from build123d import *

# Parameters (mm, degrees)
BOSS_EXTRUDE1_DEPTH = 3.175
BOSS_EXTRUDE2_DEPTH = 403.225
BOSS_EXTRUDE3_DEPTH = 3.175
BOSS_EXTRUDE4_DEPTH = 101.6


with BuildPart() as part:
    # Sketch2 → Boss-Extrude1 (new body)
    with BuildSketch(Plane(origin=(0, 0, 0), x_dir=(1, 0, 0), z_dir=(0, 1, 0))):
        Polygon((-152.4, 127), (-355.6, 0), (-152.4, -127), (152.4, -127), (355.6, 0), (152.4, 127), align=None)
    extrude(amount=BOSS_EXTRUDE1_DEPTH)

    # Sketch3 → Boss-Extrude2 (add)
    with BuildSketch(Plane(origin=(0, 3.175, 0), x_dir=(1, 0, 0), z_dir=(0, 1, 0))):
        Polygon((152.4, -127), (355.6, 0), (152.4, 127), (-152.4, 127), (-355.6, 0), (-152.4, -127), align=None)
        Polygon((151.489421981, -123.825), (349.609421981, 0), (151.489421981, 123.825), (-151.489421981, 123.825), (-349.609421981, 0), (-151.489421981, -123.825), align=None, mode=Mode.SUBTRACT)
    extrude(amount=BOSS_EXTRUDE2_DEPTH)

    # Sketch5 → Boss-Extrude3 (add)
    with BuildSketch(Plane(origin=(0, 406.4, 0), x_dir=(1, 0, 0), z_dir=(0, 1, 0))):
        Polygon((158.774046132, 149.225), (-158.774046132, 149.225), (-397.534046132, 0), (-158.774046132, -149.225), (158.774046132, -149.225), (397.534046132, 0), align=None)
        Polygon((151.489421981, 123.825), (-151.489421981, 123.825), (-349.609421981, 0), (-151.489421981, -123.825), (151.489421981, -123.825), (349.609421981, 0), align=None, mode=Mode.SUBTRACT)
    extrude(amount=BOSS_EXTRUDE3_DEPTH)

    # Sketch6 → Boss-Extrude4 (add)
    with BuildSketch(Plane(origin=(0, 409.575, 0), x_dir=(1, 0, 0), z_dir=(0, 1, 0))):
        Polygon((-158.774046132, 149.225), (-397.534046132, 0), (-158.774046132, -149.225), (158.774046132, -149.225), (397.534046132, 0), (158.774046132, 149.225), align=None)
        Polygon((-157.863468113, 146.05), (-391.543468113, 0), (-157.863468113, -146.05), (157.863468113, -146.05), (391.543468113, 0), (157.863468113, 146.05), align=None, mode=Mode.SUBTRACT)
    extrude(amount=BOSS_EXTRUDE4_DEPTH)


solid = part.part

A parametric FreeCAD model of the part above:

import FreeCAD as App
import Part
import Sketcher
Q = App.Units.Quantity


def add_polygon(sketch, points):
    """Adds a closed chain of lines whose ends are joined by coincident constraints."""
    first, n = sketch.GeometryCount, len(points)
    for a, b in zip(points, points[1:] + points[:1]):
        sketch.addGeometry(Part.LineSegment(App.Vector(*a, 0), App.Vector(*b, 0)), False)
    for i in range(n):
        sketch.addConstraint(Sketcher.Constraint("Coincident", first + i, 2, first + (i + 1) % n, 1))

doc = App.newDocument("Part")
body = doc.addObject("PartDesign::Body", "Body")

# Sketch on XZ plane
sketch1 = body.newObject("Sketcher::SketchObject", "Sketch")
sketch1.AttachmentSupport = (doc.getObject("XZ_Plane"), [""])
sketch1.MapMode = "FlatFace"
add_polygon(sketch1, [(-152, -127), (-356, 0), (-152, 127), (152, 127), (356, 0), (152, -127)])  # lines 0-5
sketch1.addConstraint([
    Sketcher.Constraint("Horizontal", 2),
    Sketcher.Constraint("Horizontal", 5),
    Sketcher.Constraint("Symmetric", 0, 2, 3, 2, -1, 1),
    Sketcher.Constraint("Symmetric", 1, 2, 4, 2, -1, 1),
    Sketcher.Constraint("PointOnObject", 0, 2, -1),
    Sketcher.Constraint("Parallel", 0, 3),
    Sketcher.Constraint("Vertical", 2, 2, 4, 2),
    Sketcher.Constraint("DistanceX", 2, 1, 2, 2, Q("12 in")),
    Sketcher.Constraint("DistanceX", 0, 2, -1, 1, Q("14 in")),
    Sketcher.Constraint("DistanceY", -1, 1, 1, 2, Q("5 in")),
])
pad1 = body.newObject("PartDesign::Pad", "Pad")
pad1.Profile = sketch1
pad1.Length = Q("0.125 in")
pad1.Reversed = True

# Sketch on XZ plane
sketch2 = body.newObject("Sketcher::SketchObject", "Sketch001")
sketch2.AttachmentSupport = (doc.getObject("XZ_Plane"), [""])
sketch2.MapMode = "FlatFace"
sketch2.AttachmentOffset = App.Placement(App.Vector(0, 0, -0.125 * 25.4), App.Rotation())
add_polygon(sketch2, [(152, 127), (356, 0), (152, -127), (-152, -127), (-356, 0), (-152, 127)])  # lines 0-5
add_polygon(sketch2, [(350, 0), (151, 124), (-151, 124), (-350, 0), (-151, -124), (151, -124)])  # lines 6-11
sketch2.addConstraint([
    Sketcher.Constraint("Horizontal", 2),
    Sketcher.Constraint("Horizontal", 5),
    Sketcher.Constraint("Horizontal", 7),
    Sketcher.Constraint("Horizontal", 10),
    Sketcher.Constraint("Symmetric", 0, 2, 3, 2, -1, 1),
    Sketcher.Constraint("Symmetric", 1, 2, 4, 2, -1, 1),
    Sketcher.Constraint("Symmetric", 6, 2, 9, 2, -1, 1),
    Sketcher.Constraint("Symmetric", 8, 2, 11, 2, -1, 1),
    Sketcher.Constraint("PointOnObject", 0, 2, -1),
    Sketcher.Constraint("PointOnObject", 8, 2, -1),
    Sketcher.Constraint("Parallel", 0, 3),
    Sketcher.Constraint("Parallel", 3, 6),
    Sketcher.Constraint("Parallel", 4, 8),
    Sketcher.Constraint("Parallel", 8, 11),
    Sketcher.Constraint("Vertical", 2, 2, 4, 2),
    Sketcher.Constraint("DistanceX", 2, 2, 2, 1, Q("12 in")),
    Sketcher.Constraint("DistanceX", -1, 1, 0, 2, Q("14 in")),
    Sketcher.Constraint("DistanceY", 1, 2, -1, 1, Q("5 in")),
    Sketcher.Constraint("DistanceX", 8, 2, 7, 2, Q("7.8 in")),
    Sketcher.Constraint("DistanceX", 7, 2, 7, 1, Q("302.978844 mm")),
])
pad2 = body.newObject("PartDesign::Pad", "Pad001")
pad2.Profile = sketch2
pad2.Length = Q("15.875 in")
pad2.Reversed = True

# Sketch on XZ plane
sketch3 = body.newObject("Sketcher::SketchObject", "Sketch002")
sketch3.AttachmentSupport = (doc.getObject("XZ_Plane"), [""])
sketch3.MapMode = "FlatFace"
sketch3.AttachmentOffset = App.Placement(App.Vector(0, 0, -16 * 25.4), App.Rotation())
add_polygon(sketch3, [(159, -149), (-159, -149), (-398, 0), (-159, 149), (159, 149), (398, 0)])  # lines 0-5
add_polygon(sketch3, [(-151, -124), (151, -124), (350, 0), (151, 124), (-151, 124), (-350, 0)])  # lines 6-11
sketch3.addConstraint([
    Sketcher.Constraint("Horizontal", 0),
    Sketcher.Constraint("Horizontal", 3),
    Sketcher.Constraint("Horizontal", 6),
    Sketcher.Constraint("Horizontal", 9),
    Sketcher.Constraint("Symmetric", 0, 2, 3, 2, -1, 1),
    Sketcher.Constraint("Symmetric", 1, 2, 4, 2, -1, 1),
    Sketcher.Constraint("Symmetric", 6, 2, 9, 2, -1, 1),
    Sketcher.Constraint("Symmetric", 7, 2, 10, 2, -1, 1),
    Sketcher.Constraint("PointOnObject", 1, 2, -1),
    Sketcher.Constraint("PointOnObject", 7, 2, -1),
    Sketcher.Constraint("Parallel", 2, 5),
    Sketcher.Constraint("Parallel", 5, 7),
    Sketcher.Constraint("Parallel", 4, 8),
    Sketcher.Constraint("Parallel", 8, 11),
    Sketcher.Constraint("Vertical", 0, 2, 2, 2),
    Sketcher.Constraint("DistanceY", 5, 2, 6, 2, Q("1 in")),
    Sketcher.Constraint("DistanceX", 1, 2, 0, 2, Q("9.4 in")),
    Sketcher.Constraint("DistanceX", 6, 2, 7, 2, Q("7.8 in")),
    Sketcher.Constraint("DistanceX", 0, 2, 0, 1, Q("317.548092 mm")),
    Sketcher.Constraint("DistanceX", 6, 1, 6, 2, Q("302.978844 mm")),
])
pad3 = body.newObject("PartDesign::Pad", "Pad002")
pad3.Profile = sketch3
pad3.Length = Q("0.125 in")
pad3.Reversed = True

# Sketch on XZ plane
sketch4 = body.newObject("Sketcher::SketchObject", "Sketch003")
sketch4.AttachmentSupport = (doc.getObject("XZ_Plane"), [""])
sketch4.MapMode = "FlatFace"
sketch4.AttachmentOffset = App.Placement(App.Vector(0, 0, -16.125 * 25.4), App.Rotation())
add_polygon(sketch4, [(-159, -149), (-398, 0), (-159, 149), (159, 149), (398, 0), (159, -149)])  # lines 0-5
add_polygon(sketch4, [(-392, 0), (-158, -146), (158, -146), (392, 0), (158, 146), (-158, 146)])  # lines 6-11
sketch4.addConstraint([
    Sketcher.Constraint("Horizontal", 2),
    Sketcher.Constraint("Horizontal", 5),
    Sketcher.Constraint("Horizontal", 7),
    Sketcher.Constraint("Horizontal", 10),
    Sketcher.Constraint("Symmetric", 0, 2, 3, 2, -1, 1),
    Sketcher.Constraint("Symmetric", 1, 2, 4, 2, -1, 1),
    Sketcher.Constraint("Symmetric", 6, 2, 9, 2, -1, 1),
    Sketcher.Constraint("Symmetric", 8, 2, 11, 2, -1, 1),
    Sketcher.Constraint("PointOnObject", 0, 2, -1),
    Sketcher.Constraint("PointOnObject", 8, 2, -1),
    Sketcher.Constraint("Parallel", 0, 3),
    Sketcher.Constraint("Parallel", 3, 6),
    Sketcher.Constraint("Parallel", 4, 8),
    Sketcher.Constraint("Parallel", 8, 11),
    Sketcher.Constraint("Vertical", 2, 2, 4, 2),
    Sketcher.Constraint("DistanceX", 0, 2, 1, 2, Q("9.4 in")),
    Sketcher.Constraint("DistanceX", 7, 2, 8, 2, Q("9.2 in")),
    Sketcher.Constraint("DistanceY", 7, 2, 9, 2, Q("11.5 in")),
    Sketcher.Constraint("DistanceX", 2, 1, 2, 2, Q("317.548092 mm")),
    Sketcher.Constraint("DistanceX", 7, 1, 7, 2, Q("315.726936 mm")),
])
pad4 = body.newObject("PartDesign::Pad", "Pad003")
pad4.Profile = sketch4
pad4.Length = Q("4 in")
pad4.Reversed = True

doc.recompute()
